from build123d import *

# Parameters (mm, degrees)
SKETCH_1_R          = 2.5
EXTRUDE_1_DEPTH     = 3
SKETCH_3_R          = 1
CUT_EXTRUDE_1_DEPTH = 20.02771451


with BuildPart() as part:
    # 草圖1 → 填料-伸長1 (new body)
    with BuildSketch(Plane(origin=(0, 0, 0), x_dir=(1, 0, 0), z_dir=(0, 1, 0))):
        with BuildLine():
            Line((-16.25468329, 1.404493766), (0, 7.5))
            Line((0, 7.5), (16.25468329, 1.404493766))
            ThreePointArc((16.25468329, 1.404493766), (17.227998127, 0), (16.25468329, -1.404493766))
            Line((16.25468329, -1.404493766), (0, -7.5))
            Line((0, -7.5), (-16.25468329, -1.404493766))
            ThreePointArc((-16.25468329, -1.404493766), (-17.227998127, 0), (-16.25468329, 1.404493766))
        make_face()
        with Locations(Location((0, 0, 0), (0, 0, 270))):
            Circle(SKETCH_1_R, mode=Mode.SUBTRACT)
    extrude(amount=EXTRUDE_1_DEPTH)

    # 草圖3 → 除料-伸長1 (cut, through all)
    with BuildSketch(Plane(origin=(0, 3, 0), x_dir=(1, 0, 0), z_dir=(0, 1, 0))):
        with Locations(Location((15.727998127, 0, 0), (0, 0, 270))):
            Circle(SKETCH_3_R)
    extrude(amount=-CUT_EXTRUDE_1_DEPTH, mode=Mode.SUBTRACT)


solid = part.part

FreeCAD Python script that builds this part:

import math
import FreeCAD as App
import Part
import Sketcher

doc = App.newDocument("Part")
params = doc.addObject("Spreadsheet::Sheet", "Params")
for row, (alias, value) in enumerate([
    ("sketch1_diameter", "5 mm"),
    ("sketch1_radius", "1.5 mm"),
    ("pad1_length", "3 mm"),
    ("sketch2_diameter", "2 mm"),
], start=1):
    params.set(f"A{row}", alias)
    params.set(f"B{row}", "=" + value)
    params.setAlias(f"B{row}", alias)

body = doc.addObject("PartDesign::Body", "Body")

# Sketch on XZ plane
sketch1 = doc.addObject("Sketcher::SketchObject", "Sketch")
body.addObject(sketch1)
sketch1.AttachmentSupport = (doc.XZ_Plane, [""])
sketch1.MapMode = "FlatFace"
sketch1.addGeometry([
    Part.LineSegment(App.Vector(0, -7.5, 0), App.Vector(-16.3, -1.4, 0)),  # 0
    Part.ArcOfCircle(Part.Circle(App.Vector(-15.7, 0, 0), App.Vector(0, 0, 1), 1.5), math.radians(111), math.radians(249)),  # 1
    Part.LineSegment(App.Vector(-16.3, 1.4, 0), App.Vector(0, 7.5, 0)),  # 2
    Part.LineSegment(App.Vector(0, 7.5, 0), App.Vector(16.3, 1.4, 0)),  # 3
    Part.ArcOfCircle(Part.Circle(App.Vector(15.7, 0, 0), App.Vector(0, 0, 1), 1.5), math.radians(-69), math.radians(69)),  # 4
    Part.LineSegment(App.Vector(16.3, -1.4, 0), App.Vector(0, -7.5, 0)),  # 5
    Part.Circle(App.Vector(0, 0, 0), App.Vector(0, 0, 1), 2.5),  # 6
], False)
sketch1.addConstraint([
    Sketcher.Constraint("Tangent", 0, 2, 1, 2),
    Sketcher.Constraint("Tangent", 1, 1, 2, 1),
    Sketcher.Constraint("Coincident", 2, 2, 3, 1),
    Sketcher.Constraint("Tangent", 3, 2, 4, 2),
    Sketcher.Constraint("Tangent", 4, 1, 5, 1),
    Sketcher.Constraint("Coincident", 5, 2, 0, 1),
    Sketcher.Constraint("Coincident", 6, 3, -1, 1),
    Sketcher.Constraint("Equal", 1, 4),
    Sketcher.Constraint("Symmetric", 1, 3, 4, 3, -1, 1),
    Sketcher.Constraint("Symmetric", 2, 2, 5, 2, -1, 1),
    Sketcher.Constraint("Symmetric", 1, 1, 3, 2, -2),
    Sketcher.Constraint("Diameter", 6, 5.0),
    Sketcher.Constraint("Radius", 1, 1.5),
    Sketcher.Constraint("DistanceY", 5, 2, 2, 2, 15.0),
    Sketcher.Constraint("DistanceX", 1, 3, -1, 1, 15.727998),
])
sketch1.setExpression("Constraints[11]", "Params.sketch1_diameter")
sketch1.setExpression("Constraints[12]", "Params.sketch1_radius")
pad1 = doc.addObject("PartDesign::Pad", "Pad")
body.addObject(pad1)
pad1.Profile = sketch1
pad1.setExpression("Length", "Params.pad1_length")
pad1.Reversed = True

# Sketch on XZ plane
sketch2 = doc.addObject("Sketcher::SketchObject", "Sketch001")
body.addObject(sketch2)
sketch2.AttachmentSupport = (doc.XZ_Plane, [""])
sketch2.MapMode = "FlatFace"
sketch2.AttachmentOffset = App.Placement(App.Vector(0, 0, -3), App.Rotation())
sketch2.addGeometry(Part.Circle(App.Vector(15.7, 0, 0), App.Vector(0, 0, 1), 1), False)
sketch2.addConstraint([
    Sketcher.Constraint("PointOnObject", 0, 3, -1),
    Sketcher.Constraint("Diameter", 0, 2.0),
    Sketcher.Constraint("DistanceX", -1, 1, 0, 3, 15.727998),
])
sketch2.setExpression("Constraints[1]", "Params.sketch2_diameter")
pocket1 = doc.addObject("PartDesign::Pocket", "Pocket")
body.addObject(pocket1)
pocket1.Profile = sketch2
pocket1.Type = "ThroughAll"
pocket1.Reversed = True

doc.recompute()
